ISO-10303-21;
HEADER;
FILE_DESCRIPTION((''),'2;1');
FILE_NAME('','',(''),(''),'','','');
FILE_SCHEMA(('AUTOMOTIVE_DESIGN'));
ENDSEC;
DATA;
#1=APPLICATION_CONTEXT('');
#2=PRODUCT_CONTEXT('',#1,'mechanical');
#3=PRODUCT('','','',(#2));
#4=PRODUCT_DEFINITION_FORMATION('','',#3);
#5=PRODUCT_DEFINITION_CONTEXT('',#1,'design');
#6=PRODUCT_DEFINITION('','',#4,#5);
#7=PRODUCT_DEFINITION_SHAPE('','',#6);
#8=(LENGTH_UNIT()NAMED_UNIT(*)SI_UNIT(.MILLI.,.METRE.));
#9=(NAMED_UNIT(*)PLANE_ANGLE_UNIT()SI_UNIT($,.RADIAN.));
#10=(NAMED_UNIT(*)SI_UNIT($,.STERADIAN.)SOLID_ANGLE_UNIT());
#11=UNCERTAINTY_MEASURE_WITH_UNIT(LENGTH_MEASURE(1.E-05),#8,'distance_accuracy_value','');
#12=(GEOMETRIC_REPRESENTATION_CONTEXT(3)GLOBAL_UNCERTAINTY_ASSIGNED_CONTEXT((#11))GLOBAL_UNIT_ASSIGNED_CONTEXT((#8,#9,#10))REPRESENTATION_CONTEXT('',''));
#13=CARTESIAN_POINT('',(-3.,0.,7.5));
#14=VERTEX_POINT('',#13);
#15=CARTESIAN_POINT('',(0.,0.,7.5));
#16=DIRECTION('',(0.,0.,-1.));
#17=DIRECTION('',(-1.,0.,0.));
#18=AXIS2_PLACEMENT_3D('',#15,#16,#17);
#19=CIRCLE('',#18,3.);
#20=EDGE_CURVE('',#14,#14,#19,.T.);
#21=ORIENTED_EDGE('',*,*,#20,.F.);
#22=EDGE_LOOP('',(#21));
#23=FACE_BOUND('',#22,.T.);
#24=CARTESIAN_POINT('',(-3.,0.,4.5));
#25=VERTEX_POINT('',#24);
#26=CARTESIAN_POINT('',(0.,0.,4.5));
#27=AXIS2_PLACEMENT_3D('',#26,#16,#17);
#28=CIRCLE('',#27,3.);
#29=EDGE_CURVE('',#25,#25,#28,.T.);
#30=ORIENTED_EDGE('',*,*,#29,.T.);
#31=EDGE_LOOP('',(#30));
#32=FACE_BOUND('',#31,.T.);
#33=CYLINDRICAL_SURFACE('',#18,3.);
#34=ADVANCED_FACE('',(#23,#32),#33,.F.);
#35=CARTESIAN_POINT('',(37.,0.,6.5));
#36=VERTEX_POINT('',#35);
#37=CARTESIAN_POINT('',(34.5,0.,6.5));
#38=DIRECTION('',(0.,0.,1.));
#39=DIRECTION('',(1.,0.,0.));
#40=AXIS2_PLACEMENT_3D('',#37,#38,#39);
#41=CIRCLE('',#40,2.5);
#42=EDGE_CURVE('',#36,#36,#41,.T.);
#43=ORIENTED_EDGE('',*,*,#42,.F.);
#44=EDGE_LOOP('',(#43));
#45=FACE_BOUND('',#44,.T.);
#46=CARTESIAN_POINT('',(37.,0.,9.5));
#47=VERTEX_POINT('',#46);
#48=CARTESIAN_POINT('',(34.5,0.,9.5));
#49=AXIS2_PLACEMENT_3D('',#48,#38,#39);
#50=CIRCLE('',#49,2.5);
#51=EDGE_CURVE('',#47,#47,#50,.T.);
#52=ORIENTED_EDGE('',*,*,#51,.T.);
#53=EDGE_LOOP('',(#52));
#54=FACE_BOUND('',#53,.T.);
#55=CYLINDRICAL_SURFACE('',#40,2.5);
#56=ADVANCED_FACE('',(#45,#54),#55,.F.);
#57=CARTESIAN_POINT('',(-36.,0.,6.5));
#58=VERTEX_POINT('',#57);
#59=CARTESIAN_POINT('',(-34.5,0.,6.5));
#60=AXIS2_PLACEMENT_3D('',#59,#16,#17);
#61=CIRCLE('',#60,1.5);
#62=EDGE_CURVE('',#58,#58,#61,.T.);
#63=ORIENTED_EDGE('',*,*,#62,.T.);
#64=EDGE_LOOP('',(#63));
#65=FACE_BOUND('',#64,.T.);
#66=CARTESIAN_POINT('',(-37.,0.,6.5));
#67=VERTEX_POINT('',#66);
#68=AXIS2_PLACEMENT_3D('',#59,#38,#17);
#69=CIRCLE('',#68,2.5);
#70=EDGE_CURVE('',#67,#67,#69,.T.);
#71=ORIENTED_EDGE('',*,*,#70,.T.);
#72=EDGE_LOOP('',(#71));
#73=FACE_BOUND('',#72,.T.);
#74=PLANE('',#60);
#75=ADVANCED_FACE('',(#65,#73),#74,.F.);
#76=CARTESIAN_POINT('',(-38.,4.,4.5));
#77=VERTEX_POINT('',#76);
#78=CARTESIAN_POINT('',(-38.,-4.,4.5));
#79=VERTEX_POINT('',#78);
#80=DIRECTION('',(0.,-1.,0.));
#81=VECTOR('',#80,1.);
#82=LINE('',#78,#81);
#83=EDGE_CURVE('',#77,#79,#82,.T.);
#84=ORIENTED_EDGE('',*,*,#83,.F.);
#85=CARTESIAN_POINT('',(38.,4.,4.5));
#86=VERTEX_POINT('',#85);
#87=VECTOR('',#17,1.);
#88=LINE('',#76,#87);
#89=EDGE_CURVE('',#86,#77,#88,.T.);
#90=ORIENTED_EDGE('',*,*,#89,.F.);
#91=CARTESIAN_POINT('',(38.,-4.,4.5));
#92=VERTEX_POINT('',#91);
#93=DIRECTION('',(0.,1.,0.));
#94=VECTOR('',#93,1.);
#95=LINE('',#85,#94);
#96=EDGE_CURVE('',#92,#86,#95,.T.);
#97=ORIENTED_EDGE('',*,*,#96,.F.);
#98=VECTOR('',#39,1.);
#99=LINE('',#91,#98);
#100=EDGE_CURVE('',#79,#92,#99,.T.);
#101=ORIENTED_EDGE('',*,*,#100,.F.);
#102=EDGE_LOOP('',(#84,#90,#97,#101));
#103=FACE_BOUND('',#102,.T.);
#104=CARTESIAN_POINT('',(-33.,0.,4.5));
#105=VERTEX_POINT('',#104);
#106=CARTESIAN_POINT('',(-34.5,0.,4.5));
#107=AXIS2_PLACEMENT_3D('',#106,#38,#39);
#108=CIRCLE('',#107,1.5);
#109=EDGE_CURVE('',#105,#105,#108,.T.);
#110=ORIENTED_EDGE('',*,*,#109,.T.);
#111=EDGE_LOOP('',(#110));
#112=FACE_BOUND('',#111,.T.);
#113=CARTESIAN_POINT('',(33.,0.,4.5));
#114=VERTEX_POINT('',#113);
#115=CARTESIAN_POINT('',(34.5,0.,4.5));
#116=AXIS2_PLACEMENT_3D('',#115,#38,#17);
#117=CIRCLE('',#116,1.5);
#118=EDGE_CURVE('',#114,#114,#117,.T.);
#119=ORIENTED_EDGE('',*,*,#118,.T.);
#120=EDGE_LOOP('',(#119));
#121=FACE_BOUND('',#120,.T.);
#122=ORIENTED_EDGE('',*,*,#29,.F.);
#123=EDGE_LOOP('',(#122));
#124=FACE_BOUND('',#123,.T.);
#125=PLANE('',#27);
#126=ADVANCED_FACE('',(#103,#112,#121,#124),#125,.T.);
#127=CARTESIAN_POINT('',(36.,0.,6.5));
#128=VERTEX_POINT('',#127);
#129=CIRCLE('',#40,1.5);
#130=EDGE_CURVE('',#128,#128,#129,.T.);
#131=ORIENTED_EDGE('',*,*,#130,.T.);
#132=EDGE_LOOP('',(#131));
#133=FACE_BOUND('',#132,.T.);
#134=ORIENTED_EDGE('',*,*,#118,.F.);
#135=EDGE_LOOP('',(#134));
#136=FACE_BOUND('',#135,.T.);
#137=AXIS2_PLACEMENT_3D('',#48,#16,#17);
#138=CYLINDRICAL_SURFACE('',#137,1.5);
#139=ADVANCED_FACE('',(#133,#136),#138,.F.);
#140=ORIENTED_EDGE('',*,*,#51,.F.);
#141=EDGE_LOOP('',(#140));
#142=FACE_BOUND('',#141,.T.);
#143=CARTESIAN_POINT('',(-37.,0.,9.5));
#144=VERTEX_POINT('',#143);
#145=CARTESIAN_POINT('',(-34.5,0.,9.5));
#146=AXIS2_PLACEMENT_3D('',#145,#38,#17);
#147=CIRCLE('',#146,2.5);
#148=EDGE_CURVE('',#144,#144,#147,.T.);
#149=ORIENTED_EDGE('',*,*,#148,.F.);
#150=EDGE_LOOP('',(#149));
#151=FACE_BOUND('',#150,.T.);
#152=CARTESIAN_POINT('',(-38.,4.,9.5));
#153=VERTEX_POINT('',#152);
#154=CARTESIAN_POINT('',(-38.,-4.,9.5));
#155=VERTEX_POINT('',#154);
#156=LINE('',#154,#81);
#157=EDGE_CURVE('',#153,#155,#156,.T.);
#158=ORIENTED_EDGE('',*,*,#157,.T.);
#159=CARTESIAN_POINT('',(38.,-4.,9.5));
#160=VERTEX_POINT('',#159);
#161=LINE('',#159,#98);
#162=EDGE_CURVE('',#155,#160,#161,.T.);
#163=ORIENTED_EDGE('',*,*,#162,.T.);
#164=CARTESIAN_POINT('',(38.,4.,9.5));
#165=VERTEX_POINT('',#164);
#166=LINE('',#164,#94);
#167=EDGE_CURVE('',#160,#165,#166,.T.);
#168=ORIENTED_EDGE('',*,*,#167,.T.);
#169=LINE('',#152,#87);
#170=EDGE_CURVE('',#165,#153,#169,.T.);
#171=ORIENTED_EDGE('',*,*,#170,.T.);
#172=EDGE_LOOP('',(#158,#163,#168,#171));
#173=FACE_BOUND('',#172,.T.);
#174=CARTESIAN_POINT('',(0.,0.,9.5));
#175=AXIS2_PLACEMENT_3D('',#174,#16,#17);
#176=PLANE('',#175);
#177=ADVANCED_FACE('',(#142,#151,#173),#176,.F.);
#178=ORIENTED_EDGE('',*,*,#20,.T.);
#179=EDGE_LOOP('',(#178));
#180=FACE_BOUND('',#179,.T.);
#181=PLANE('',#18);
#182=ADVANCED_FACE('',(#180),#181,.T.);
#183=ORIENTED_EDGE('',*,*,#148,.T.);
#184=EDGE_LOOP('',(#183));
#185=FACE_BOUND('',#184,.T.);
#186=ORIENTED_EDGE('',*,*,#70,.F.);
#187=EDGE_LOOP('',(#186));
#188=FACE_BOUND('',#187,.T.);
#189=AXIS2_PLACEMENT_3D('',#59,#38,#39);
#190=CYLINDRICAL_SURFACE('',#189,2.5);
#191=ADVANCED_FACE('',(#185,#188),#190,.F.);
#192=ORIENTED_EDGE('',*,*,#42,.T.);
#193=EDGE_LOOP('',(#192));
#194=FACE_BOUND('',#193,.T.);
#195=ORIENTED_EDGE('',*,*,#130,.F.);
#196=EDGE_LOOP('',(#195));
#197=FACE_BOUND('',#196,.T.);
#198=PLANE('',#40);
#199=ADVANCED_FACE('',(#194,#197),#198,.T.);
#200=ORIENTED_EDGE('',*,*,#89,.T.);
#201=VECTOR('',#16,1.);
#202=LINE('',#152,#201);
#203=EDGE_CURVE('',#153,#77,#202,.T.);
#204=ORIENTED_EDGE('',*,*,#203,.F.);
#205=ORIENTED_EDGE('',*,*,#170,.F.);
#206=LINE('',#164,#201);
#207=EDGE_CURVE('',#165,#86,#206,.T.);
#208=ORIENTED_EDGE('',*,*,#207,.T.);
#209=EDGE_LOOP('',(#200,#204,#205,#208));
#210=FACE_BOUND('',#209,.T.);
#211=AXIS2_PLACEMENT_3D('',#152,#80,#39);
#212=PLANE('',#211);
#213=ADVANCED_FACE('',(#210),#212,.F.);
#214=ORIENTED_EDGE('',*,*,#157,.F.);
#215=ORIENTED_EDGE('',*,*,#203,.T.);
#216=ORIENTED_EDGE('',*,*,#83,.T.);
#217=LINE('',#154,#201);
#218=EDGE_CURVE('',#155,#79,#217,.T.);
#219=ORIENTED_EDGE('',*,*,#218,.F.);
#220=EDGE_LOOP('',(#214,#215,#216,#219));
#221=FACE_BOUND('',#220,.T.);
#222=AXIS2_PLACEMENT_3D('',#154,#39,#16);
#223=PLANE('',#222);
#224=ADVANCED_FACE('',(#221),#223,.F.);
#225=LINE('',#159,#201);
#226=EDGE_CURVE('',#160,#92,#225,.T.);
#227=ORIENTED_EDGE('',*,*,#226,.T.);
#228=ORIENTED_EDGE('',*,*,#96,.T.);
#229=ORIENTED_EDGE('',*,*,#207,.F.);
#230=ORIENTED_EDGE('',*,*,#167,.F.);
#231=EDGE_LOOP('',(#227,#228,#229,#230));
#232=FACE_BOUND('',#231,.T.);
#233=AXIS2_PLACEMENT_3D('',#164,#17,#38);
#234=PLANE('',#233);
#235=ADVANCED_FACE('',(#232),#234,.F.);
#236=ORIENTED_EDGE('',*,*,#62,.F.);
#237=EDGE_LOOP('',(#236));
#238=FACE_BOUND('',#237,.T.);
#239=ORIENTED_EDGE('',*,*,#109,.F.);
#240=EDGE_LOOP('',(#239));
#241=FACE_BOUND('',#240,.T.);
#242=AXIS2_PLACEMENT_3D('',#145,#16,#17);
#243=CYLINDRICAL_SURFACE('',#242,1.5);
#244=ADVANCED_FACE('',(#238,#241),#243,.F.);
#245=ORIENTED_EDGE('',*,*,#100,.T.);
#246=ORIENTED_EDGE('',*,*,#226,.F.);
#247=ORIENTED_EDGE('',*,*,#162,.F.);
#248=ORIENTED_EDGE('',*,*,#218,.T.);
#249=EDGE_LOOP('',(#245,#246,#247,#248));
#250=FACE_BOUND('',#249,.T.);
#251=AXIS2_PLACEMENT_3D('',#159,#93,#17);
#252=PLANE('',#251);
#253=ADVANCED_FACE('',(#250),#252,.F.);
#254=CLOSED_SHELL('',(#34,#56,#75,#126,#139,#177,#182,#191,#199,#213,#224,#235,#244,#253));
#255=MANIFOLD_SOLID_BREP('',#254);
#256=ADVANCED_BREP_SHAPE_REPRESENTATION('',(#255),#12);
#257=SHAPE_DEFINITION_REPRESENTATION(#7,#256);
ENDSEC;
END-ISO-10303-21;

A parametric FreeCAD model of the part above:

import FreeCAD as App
import Part
import Sketcher
Q = App.Units.Quantity


def add_polygon(sketch, points):
    """Adds a closed chain of lines whose ends are joined by coincident constraints."""
    first, n = sketch.GeometryCount, len(points)
    for a, b in zip(points, points[1:] + points[:1]):
        sketch.addGeometry(Part.LineSegment(App.Vector(*a, 0), App.Vector(*b, 0)), False)
    for i in range(n):
        sketch.addConstraint(Sketcher.Constraint("Coincident", first + i, 2, first + (i + 1) % n, 1))

doc = App.newDocument("Part")
params = doc.addObject("Spreadsheet::Sheet", "Params")
for row, (alias, value) in enumerate([
    ("sketch1_diameter", "3 mm"),
    ("sketch1_width", "76 mm"),
    ("sketch1_height", "8 mm"),
    ("pad1_length", "5 mm"),
    ("sketch2_diameter", "6 mm"),
    ("pocket1_length", "3 mm"),
    ("sketch3_diameter", "5 mm"),
    ("pocket2_length", "3 mm"),
], start=1):
    params.set(f"A{row}", alias)
    params.set(f"B{row}", "=" + value)
    params.setAlias(f"B{row}", alias)

body = doc.addObject("PartDesign::Body", "Body")

# Sketch on XY plane
sketch1 = body.newObject("Sketcher::SketchObject", "Sketch")
sketch1.AttachmentSupport = (doc.getObject("XY_Plane"), [""])
sketch1.MapMode = "FlatFace"
sketch1.AttachmentOffset = App.Placement(App.Vector(0, 0, 4.5), App.Rotation())
add_polygon(sketch1, [(-38, 4), (-38, -4), (38, -4), (38, 4)])  # lines 0-3
sketch1.addGeometry(Part.Circle(App.Vector(-34.5, 0, 0), App.Vector(0, 0, 1), 1.5), False)  # 4
sketch1.addGeometry(Part.Circle(App.Vector(34.5, 0, 0), App.Vector(0, 0, 1), 1.5), False)  # 5
sketch1.addConstraint([
    Sketcher.Constraint("Vertical", 0),
    Sketcher.Constraint("Horizontal", 1),
    Sketcher.Constraint("Vertical", 2),
    Sketcher.Constraint("Horizontal", 3),
    Sketcher.Constraint("Equal", 4, 5),
    Sketcher.Constraint("Symmetric", 4, 3, 5, 3, -1, 1),
    Sketcher.Constraint("Symmetric", 0, 2, 2, 2, -1, 1),
    Sketcher.Constraint("PointOnObject", 4, 3, -1),
    Sketcher.Constraint("Diameter", 4, Q("3 mm")),
    Sketcher.Constraint("DistanceX", 1, 1, 1, 2, Q("76 mm")),
    Sketcher.Constraint("DistanceY", 0, 2, 0, 1, Q("8 mm")),
    Sketcher.Constraint("DistanceX", 4, 3, 5, 3, Q("69 mm")),
])
sketch1.setExpression("Constraints[12]", "Params.sketch1_diameter")
sketch1.setExpression("Constraints[13]", "Params.sketch1_width")
sketch1.setExpression("Constraints[14]", "Params.sketch1_height")
pad1 = body.newObject("PartDesign::Pad", "Pad")
pad1.Profile = sketch1
pad1.setExpression("Length", "Params.pad1_length")

# Sketch on XY plane
sketch2 = body.newObject("Sketcher::SketchObject", "Sketch001")
sketch2.AttachmentSupport = (doc.getObject("XY_Plane"), [""])
sketch2.MapMode = "FlatFace"
sketch2.AttachmentOffset = App.Placement(App.Vector(0, 0, 4.5), App.Rotation())
sketch2.addGeometry(Part.Circle(App.Vector(0, 0, 0), App.Vector(0, 0, 1), 3), False)
sketch2.addConstraint([
    Sketcher.Constraint("Coincident", 0, 3, -1, 1),
    Sketcher.Constraint("Diameter", 0, Q("6 mm")),
])
sketch2.setExpression("Constraints[1]", "Params.sketch2_diameter")
pocket1 = body.newObject("PartDesign::Pocket", "Pocket")
pocket1.Profile = sketch2
pocket1.setExpression("Length", "Params.pocket1_length")
pocket1.Reversed = True

# Sketch on XY plane
sketch3 = body.newObject("Sketcher::SketchObject", "Sketch002")
sketch3.AttachmentSupport = (doc.getObject("XY_Plane"), [""])
sketch3.MapMode = "FlatFace"
sketch3.AttachmentOffset = App.Placement(App.Vector(0, 0, 9.5), App.Rotation())
sketch3.addGeometry([
    Part.Circle(App.Vector(34.5, 0, 0), App.Vector(0, 0, 1), 2.5),
    Part.Circle(App.Vector(-34.5, 0, 0), App.Vector(0, 0, 1), 2.5),
], False)
sketch3.addConstraint([
    Sketcher.Constraint("Equal", 0, 1),
    Sketcher.Constraint("Symmetric", 0, 3, 1, 3, -1, 1),
    Sketcher.Constraint("PointOnObject", 0, 3, -1),
    Sketcher.Constraint("Diameter", 0, Q("5 mm")),
    Sketcher.Constraint("DistanceX", 1, 3, 0, 3, Q("69 mm")),
])
sketch3.setExpression("Constraints[3]", "Params.sketch3_diameter")
pocket2 = body.newObject("PartDesign::Pocket", "Pocket001")
pocket2.Profile = sketch3
pocket2.setExpression("Length", "Params.pocket2_length")

doc.recompute()
